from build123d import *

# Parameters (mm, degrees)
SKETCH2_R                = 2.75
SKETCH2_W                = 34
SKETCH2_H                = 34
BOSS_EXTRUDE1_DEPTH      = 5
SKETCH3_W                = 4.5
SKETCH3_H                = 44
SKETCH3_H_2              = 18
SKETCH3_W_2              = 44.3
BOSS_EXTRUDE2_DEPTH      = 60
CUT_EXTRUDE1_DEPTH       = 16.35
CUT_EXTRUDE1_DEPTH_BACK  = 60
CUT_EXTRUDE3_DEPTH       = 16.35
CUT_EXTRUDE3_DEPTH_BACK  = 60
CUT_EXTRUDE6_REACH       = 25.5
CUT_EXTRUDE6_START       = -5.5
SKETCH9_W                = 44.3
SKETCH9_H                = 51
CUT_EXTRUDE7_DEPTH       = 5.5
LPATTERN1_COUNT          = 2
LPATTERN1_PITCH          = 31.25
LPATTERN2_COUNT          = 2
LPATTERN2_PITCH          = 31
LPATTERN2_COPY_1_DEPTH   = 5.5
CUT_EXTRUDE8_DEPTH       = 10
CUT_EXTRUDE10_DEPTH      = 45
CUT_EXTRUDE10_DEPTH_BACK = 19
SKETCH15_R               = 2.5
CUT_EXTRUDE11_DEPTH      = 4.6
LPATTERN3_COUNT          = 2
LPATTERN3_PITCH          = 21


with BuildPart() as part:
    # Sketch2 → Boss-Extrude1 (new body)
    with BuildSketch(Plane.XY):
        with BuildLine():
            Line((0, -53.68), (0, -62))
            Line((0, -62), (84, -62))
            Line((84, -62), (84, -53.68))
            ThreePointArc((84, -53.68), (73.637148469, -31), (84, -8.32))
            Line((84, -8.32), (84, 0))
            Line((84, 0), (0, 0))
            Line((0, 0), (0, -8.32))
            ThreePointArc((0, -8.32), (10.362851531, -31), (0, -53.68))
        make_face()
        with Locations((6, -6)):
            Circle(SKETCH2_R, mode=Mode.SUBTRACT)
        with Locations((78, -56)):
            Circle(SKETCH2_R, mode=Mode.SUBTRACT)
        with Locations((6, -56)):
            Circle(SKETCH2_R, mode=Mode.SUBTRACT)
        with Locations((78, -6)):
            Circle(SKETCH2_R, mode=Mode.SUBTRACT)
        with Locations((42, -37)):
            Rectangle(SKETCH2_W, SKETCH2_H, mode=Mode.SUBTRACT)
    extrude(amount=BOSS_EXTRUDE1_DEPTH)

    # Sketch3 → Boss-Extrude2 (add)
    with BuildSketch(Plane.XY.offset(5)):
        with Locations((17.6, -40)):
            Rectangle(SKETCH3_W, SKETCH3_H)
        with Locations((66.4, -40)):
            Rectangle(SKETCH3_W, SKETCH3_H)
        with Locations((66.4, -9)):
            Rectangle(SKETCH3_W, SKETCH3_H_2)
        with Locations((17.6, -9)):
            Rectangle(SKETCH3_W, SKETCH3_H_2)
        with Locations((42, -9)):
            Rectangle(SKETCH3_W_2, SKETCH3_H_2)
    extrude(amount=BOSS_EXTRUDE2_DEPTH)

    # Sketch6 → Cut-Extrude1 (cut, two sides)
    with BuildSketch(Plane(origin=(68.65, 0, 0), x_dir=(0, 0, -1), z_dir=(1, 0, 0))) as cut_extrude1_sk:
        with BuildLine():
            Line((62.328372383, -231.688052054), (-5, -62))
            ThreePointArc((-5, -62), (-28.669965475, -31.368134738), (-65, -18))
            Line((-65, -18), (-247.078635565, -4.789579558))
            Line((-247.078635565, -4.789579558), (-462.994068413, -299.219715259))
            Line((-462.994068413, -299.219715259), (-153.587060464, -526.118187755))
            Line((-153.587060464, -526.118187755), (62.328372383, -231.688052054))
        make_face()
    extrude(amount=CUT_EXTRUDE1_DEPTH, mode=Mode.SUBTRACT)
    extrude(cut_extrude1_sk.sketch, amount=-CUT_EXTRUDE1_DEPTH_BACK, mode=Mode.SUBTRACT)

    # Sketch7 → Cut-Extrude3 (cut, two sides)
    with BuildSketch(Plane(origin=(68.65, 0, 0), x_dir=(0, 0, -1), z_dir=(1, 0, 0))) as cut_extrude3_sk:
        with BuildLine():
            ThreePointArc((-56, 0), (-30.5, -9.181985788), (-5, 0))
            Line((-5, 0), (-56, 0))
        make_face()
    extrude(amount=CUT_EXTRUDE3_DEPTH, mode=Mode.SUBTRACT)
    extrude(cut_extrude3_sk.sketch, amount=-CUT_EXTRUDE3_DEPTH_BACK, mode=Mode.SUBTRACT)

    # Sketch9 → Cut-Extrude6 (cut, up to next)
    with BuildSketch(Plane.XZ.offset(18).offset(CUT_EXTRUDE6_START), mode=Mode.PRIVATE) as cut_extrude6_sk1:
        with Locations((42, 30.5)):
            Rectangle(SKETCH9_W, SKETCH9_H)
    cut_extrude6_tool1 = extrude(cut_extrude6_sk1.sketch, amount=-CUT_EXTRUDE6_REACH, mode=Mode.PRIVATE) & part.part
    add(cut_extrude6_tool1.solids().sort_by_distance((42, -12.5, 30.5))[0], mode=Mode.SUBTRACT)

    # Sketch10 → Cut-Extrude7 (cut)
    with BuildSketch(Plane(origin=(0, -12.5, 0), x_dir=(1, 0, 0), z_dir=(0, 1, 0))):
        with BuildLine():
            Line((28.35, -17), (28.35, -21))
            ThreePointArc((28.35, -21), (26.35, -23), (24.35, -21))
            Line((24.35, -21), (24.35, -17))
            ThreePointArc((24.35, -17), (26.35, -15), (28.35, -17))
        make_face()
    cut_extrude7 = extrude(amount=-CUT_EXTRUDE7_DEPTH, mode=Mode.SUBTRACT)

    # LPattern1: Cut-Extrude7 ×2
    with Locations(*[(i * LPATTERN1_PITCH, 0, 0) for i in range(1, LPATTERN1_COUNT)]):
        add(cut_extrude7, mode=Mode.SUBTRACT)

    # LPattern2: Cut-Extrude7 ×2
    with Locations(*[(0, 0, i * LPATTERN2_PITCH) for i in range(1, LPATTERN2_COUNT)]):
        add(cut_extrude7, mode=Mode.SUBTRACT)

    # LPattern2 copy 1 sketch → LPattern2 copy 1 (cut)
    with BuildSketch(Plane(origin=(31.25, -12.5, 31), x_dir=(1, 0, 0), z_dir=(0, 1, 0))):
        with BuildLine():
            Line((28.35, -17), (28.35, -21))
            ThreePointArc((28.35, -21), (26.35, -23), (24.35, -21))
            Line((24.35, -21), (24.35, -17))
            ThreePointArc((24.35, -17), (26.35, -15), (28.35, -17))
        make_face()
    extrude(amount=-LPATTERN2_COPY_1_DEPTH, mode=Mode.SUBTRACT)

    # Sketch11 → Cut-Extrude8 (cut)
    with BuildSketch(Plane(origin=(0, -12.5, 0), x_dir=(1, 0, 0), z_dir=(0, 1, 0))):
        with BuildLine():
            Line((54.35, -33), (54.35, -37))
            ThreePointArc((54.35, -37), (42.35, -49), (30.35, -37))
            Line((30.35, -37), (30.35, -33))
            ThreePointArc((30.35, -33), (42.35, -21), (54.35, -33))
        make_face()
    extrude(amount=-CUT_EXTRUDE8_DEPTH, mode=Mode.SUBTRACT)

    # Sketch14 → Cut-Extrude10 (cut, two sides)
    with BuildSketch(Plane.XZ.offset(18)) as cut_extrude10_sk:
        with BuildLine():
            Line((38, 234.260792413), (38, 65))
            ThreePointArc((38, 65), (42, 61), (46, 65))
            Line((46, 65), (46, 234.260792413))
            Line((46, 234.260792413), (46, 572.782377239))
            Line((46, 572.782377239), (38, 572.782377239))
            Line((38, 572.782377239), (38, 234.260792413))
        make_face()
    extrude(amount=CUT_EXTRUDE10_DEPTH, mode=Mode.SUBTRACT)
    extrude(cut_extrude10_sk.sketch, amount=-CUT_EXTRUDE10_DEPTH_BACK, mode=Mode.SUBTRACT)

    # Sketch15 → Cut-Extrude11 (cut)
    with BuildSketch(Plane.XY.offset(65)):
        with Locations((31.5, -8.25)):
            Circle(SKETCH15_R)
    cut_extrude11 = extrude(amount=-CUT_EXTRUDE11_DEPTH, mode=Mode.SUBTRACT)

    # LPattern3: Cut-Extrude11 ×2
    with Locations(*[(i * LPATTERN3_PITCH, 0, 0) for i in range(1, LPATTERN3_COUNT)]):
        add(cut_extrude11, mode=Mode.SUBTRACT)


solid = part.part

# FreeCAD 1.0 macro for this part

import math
import FreeCAD as App
import Part
import Sketcher

V = App.Vector


def add_polygon(sketch, points):
    """Adds a closed chain of lines whose ends are joined by coincident constraints."""
    first, n = sketch.GeometryCount, len(points)
    for a, b in zip(points, points[1:] + points[:1]):
        sketch.addGeometry(Part.LineSegment(App.Vector(*a, 0), App.Vector(*b, 0)), False)
    for i in range(n):
        sketch.addConstraint(Sketcher.Constraint("Coincident", first + i, 2, first + (i + 1) % n, 1))

doc = App.newDocument("Part")
body = doc.addObject("PartDesign::Body", "Body")

sketch1 = body.newObject("Sketcher::SketchObject", "Sketch")
sketch1.AttachmentSupport = (doc.getObject("XY_Plane"), [""])
sketch1.MapMode = "FlatFace"
sketch1.addGeometry(Part.LineSegment(V(0, -53.7, 0), V(0, -62, 0)), False)
sketch1.addGeometry(Part.LineSegment(V(0, -62, 0), V(84, -62, 0)), False)
sketch1.addGeometry(Part.LineSegment(V(84, -62, 0), V(84, -53.7, 0)), False)
sketch1.addGeometry(Part.ArcOfCircle(Part.Circle(V(103.6, -31, 0), V(0, 0, 1), 30), math.radians(131), math.radians(229)), False)
sketch1.addGeometry(Part.LineSegment(V(84, -8.3, 0), V(84, 0, 0)), False)
sketch1.addGeometry(Part.LineSegment(V(84, 0, 0), V(0, 0, 0)), False)
sketch1.addGeometry(Part.LineSegment(V(0, 0, 0), V(0, -8.3, 0)), False)
sketch1.addGeometry(Part.ArcOfCircle(Part.Circle(V(-19.6, -31, 0), V(0, 0, 1), 30), math.radians(-49), math.radians(49)), False)
sketch1.addGeometry(Part.Circle(V(6, -56, 0), V(0, 0, 1), 2.8), False)
sketch1.addGeometry(Part.Circle(V(78, -56, 0), V(0, 0, 1), 2.8), False)
add_polygon(sketch1, [(59, -54), (25, -54), (25, -20), (59, -20)])
sketch1.addGeometry(Part.Circle(V(6, -6, 0), V(0, 0, 1), 2.8), False)
sketch1.addGeometry(Part.Circle(V(78, -6, 0), V(0, 0, 1), 2.8), False)
sketch1.addConstraint(Sketcher.Constraint("Coincident", 0, 2, 1, 1))
sketch1.addConstraint(Sketcher.Constraint("Coincident", 1, 2, 2, 1))
sketch1.addConstraint(Sketcher.Constraint("Coincident", 2, 2, 3, 2))
sketch1.addConstraint(Sketcher.Constraint("Coincident", 3, 1, 4, 1))
sketch1.addConstraint(Sketcher.Constraint("Coincident", 4, 2, 5, 1))
sketch1.addConstraint(Sketcher.Constraint("Coincident", 5, 2, 6, 1))
sketch1.addConstraint(Sketcher.Constraint("Coincident", 6, 2, 7, 2))
sketch1.addConstraint(Sketcher.Constraint("Coincident", 7, 1, 0, 1))
sketch1.addConstraint(Sketcher.Constraint("Vertical", 0))
sketch1.addConstraint(Sketcher.Constraint("Horizontal", 1))
sketch1.addConstraint(Sketcher.Constraint("Vertical", 2))
sketch1.addConstraint(Sketcher.Constraint("Vertical", 4))
sketch1.addConstraint(Sketcher.Constraint("Horizontal", 5))
sketch1.addConstraint(Sketcher.Constraint("Vertical", 6))
sketch1.addConstraint(Sketcher.Constraint("Horizontal", 10))
sketch1.addConstraint(Sketcher.Constraint("Vertical", 11))
sketch1.addConstraint(Sketcher.Constraint("Horizontal", 12))
sketch1.addConstraint(Sketcher.Constraint("Vertical", 13))
sketch1.addConstraint(Sketcher.Constraint("Coincident", 5, 2, -1, 1))
sketch1.addConstraint(Sketcher.Constraint("Equal", 3, 7))
sketch1.addConstraint(Sketcher.Constraint("Equal", 8, 9))
sketch1.addConstraint(Sketcher.Constraint("Equal", 9, 14))
sketch1.addConstraint(Sketcher.Constraint("Equal", 14, 15))
sketch1.addConstraint(Sketcher.Constraint("PointOnObject", 0, 2, -2))
sketch1.addConstraint(Sketcher.Constraint("Horizontal", 3, 3, 7, 3))
sketch1.addConstraint(Sketcher.Constraint("Horizontal", 8, 3, 9, 3))
sketch1.addConstraint(Sketcher.Constraint("Horizontal", 14, 3, 15, 3))
sketch1.addConstraint(Sketcher.Constraint("Horizontal", 3, 1, 6, 2))
sketch1.addConstraint(Sketcher.Constraint("Horizontal", 2, 2, 7, 1))
sketch1.addConstraint(Sketcher.Constraint("Vertical", 8, 3, 14, 3))
sketch1.addConstraint(Sketcher.Constraint("Vertical", 9, 3, 15, 3))
sketch1.addConstraint(Sketcher.Constraint("Equal", 2, 4))
sketch1.addConstraint(Sketcher.Constraint("Equal", 12, 11))
sketch1.addConstraint(Sketcher.Constraint("Radius", 3, 30.0))
sketch1.addConstraint(Sketcher.Constraint("Diameter", 8, 5.5))
sketch1.addConstraint(Sketcher.Constraint("DistanceX", 1, 1, 1, 2, 84.0))
sketch1.addConstraint(Sketcher.Constraint("DistanceX", 10, 2, 10, 1, 34.0))
sketch1.addConstraint(Sketcher.Constraint("DistanceY", 3, 3, -1, 1, 31.0))
sketch1.addConstraint(Sketcher.Constraint("DistanceX", -1, 1, 8, 3, 6.0))
sketch1.addConstraint(Sketcher.Constraint("DistanceY", 8, 3, -1, 1, 56.0))
sketch1.addConstraint(Sketcher.Constraint("DistanceX", -1, 1, 9, 3, 78.0))
sketch1.addConstraint(Sketcher.Constraint("DistanceY", 14, 3, -1, 1, 6.0))
sketch1.addConstraint(Sketcher.Constraint("DistanceX", -1, 1, 10, 2, 25.0))
sketch1.addConstraint(Sketcher.Constraint("DistanceY", 10, 2, -1, 1, 54.0))
sketch1.addConstraint(Sketcher.Constraint("DistanceY", 0, 2, 0, 1, 8.32))
pad1 = body.newObject("PartDesign::Pad", "Pad")
pad1.Profile = sketch1
pad1.Length = 5

sketch2 = body.newObject("Sketcher::SketchObject", "Sketch001")
sketch2.AttachmentSupport = (doc.getObject("XY_Plane"), [""])
sketch2.MapMode = "FlatFace"
sketch2.AttachmentOffset = App.Placement(V(0, 0, 5), App.Rotation())
add_polygon(sketch2, [(15.3, -62), (19.9, -62), (19.9, -18), (64.2, -18), (64.2, -62), (68.7, -62), (68.7, 0), (15.3, 0)])
sketch2.addConstraint(Sketcher.Constraint("Horizontal", 0))
sketch2.addConstraint(Sketcher.Constraint("Vertical", 1))
sketch2.addConstraint(Sketcher.Constraint("Horizontal", 2))
sketch2.addConstraint(Sketcher.Constraint("Vertical", 3))
sketch2.addConstraint(Sketcher.Constraint("Horizontal", 4))
sketch2.addConstraint(Sketcher.Constraint("Vertical", 5))
sketch2.addConstraint(Sketcher.Constraint("Horizontal", 6))
sketch2.addConstraint(Sketcher.Constraint("Vertical", 7))
sketch2.addConstraint(Sketcher.Constraint("PointOnObject", 5, 2, -1))
sketch2.addConstraint(Sketcher.Constraint("Horizontal", 0, 2, 3, 2))
sketch2.addConstraint(Sketcher.Constraint("Equal", 0, 4))
sketch2.addConstraint(Sketcher.Constraint("DistanceY", 1, 1, 1, 2, 44.0))
sketch2.addConstraint(Sketcher.Constraint("DistanceY", 5, 1, 5, 2, 62.0))
sketch2.addConstraint(Sketcher.Constraint("DistanceX", 0, 1, 0, 2, 4.5))
sketch2.addConstraint(Sketcher.Constraint("DistanceX", 2, 1, 2, 2, 44.3))
sketch2.addConstraint(Sketcher.Constraint("DistanceX", -1, 1, 0, 2, 19.85))
pad2 = body.newObject("PartDesign::Pad", "Pad001")
pad2.Profile = sketch2
pad2.Length = 60

sketch3 = body.newObject("Sketcher::SketchObject", "Sketch002")
sketch3.AttachmentSupport = (doc.getObject("YZ_Plane"), [""])
sketch3.MapMode = "FlatFace"
sketch3.AttachmentOffset = App.Placement(V(0, 0, 68.65), App.Rotation())
sketch3.addGeometry(Part.LineSegment(V(-232, -62, 0), V(-62, 5, 0)), False)
sketch3.addGeometry(Part.ArcOfCircle(Part.Circle(V(-88, 70, 0), V(0, 0, 1), 70), math.radians(-68), math.radians(-4)), False)
sketch3.addGeometry(Part.LineSegment(V(-18, 65, 0), V(-5, 247, 0)), False)
sketch3.addGeometry(Part.LineSegment(V(-5, 247, 0), V(-299, 463, 0)), False)
sketch3.addGeometry(Part.LineSegment(V(-299, 463, 0), V(-526, 154, 0)), False)
sketch3.addGeometry(Part.LineSegment(V(-526, 154, 0), V(-232, -62, 0)), False)
sketch3.addConstraint(Sketcher.Constraint("Tangent", 0, 2, 1, 1))
sketch3.addConstraint(Sketcher.Constraint("Tangent", 1, 2, 2, 1))
sketch3.addConstraint(Sketcher.Constraint("Coincident", 2, 2, 3, 1))
sketch3.addConstraint(Sketcher.Constraint("Coincident", 3, 2, 4, 1))
sketch3.addConstraint(Sketcher.Constraint("Coincident", 4, 2, 5, 1))
sketch3.addConstraint(Sketcher.Constraint("Coincident", 5, 2, 0, 1))
sketch3.addConstraint(Sketcher.Constraint("Perpendicular", 3, 4))
sketch3.addConstraint(Sketcher.Constraint("Perpendicular", 4, 5))
sketch3.addConstraint(Sketcher.Constraint("Equal", 0, 2))
sketch3.addConstraint(Sketcher.Constraint("Equal", 3, 5))
sketch3.addConstraint(Sketcher.Constraint("Radius", 1, 70.0))
sketch3.addConstraint(Sketcher.Constraint("DistanceX", 0, 2, -1, 1, 62.0))
sketch3.addConstraint(Sketcher.Constraint("DistanceY", -1, 1, 0, 2, 5.0))
sketch3.addConstraint(Sketcher.Constraint("DistanceX", 1, 2, -1, 1, 18.0))
sketch3.addConstraint(Sketcher.Constraint("Distance", 4, 383.686869))
sketch3.addConstraint(Sketcher.Constraint("DistanceY", -1, 1, 1, 3, 70.065422))
sketch3.addConstraint(Sketcher.Constraint("DistanceY", -1, 1, 3, 2, 462.994068))
pocket1 = body.newObject("PartDesign::Pocket", "Pocket")
pocket1.Profile = sketch3
pocket1.Type = "ThroughAll"
pocket1.Midplane = True

sketch4 = body.newObject("Sketcher::SketchObject", "Sketch003")
sketch4.AttachmentSupport = (doc.getObject("YZ_Plane"), [""])
sketch4.MapMode = "FlatFace"
sketch4.AttachmentOffset = App.Placement(V(0, 0, 68.65), App.Rotation())
sketch4.addGeometry(Part.ArcOfCircle(Part.Circle(V(31, 30, 0), V(0, 0, 1), 40), math.radians(140), math.radians(220)), False)
sketch4.addGeometry(Part.LineSegment(V(0, 5, 0), V(0, 56, 0)), False)
sketch4.addConstraint(Sketcher.Constraint("Coincident", 0, 1, 1, 2))
sketch4.addConstraint(Sketcher.Constraint("Coincident", 1, 1, 0, 2))
sketch4.addConstraint(Sketcher.Constraint("Vertical", 1))
sketch4.addConstraint(Sketcher.Constraint("PointOnObject", 0, 1, -2))
sketch4.addConstraint(Sketcher.Constraint("Radius", 0, 40.0))
sketch4.addConstraint(Sketcher.Constraint("DistanceY", 1, 1, 1, 2, 51.0))
sketch4.addConstraint(Sketcher.Constraint("DistanceY", -1, 1, 0, 1, 56.0))
pocket2 = body.newObject("PartDesign::Pocket", "Pocket001")
pocket2.Profile = sketch4
pocket2.Type = "ThroughAll"
pocket2.Midplane = True

sketch5 = body.newObject("Sketcher::SketchObject", "Sketch004")
sketch5.AttachmentSupport = (doc.getObject("XZ_Plane"), [""])
sketch5.MapMode = "FlatFace"
sketch5.AttachmentOffset = App.Placement(V(0, 0, 12.5), App.Rotation())
add_polygon(sketch5, [(20, 56), (20, 5), (64, 5), (64, 56)])
sketch5.addConstraint(Sketcher.Constraint("Vertical", 0))
sketch5.addConstraint(Sketcher.Constraint("Horizontal", 1))
sketch5.addConstraint(Sketcher.Constraint("Vertical", 2))
sketch5.addConstraint(Sketcher.Constraint("Horizontal", 3))
sketch5.addConstraint(Sketcher.Constraint("DistanceY", 0, 2, 0, 1, 51.0))
sketch5.addConstraint(Sketcher.Constraint("DistanceX", 1, 1, 1, 2, 44.3))
sketch5.addConstraint(Sketcher.Constraint("DistanceY", -1, 1, 0, 2, 5.0))
sketch5.addConstraint(Sketcher.Constraint("DistanceX", -1, 1, 0, 2, 19.85))
pocket3 = body.newObject("PartDesign::Pocket", "Pocket002")
pocket3.Profile = sketch5
pocket3.Type = "UpToFirst"

sketch6 = body.newObject("Sketcher::SketchObject", "Sketch005")
sketch6.AttachmentSupport = (doc.getObject("XZ_Plane"), [""])
sketch6.MapMode = "FlatFace"
sketch6.AttachmentOffset = App.Placement(V(0, 0, 12.5), App.Rotation())
sketch6.addGeometry(Part.LineSegment(V(28.4, 21, 0), V(28.4, 17, 0)), False)
sketch6.addGeometry(Part.ArcOfCircle(Part.Circle(V(26.4, 17, 0), V(0, 0, 1), 2), math.radians(180), math.radians(360)), False)
sketch6.addGeometry(Part.LineSegment(V(24.4, 17, 0), V(24.4, 21, 0)), False)
sketch6.addGeometry(Part.ArcOfCircle(Part.Circle(V(26.4, 21, 0), V(0, 0, 1), 2), math.radians(0), math.radians(180)), False)
sketch6.addConstraint(Sketcher.Constraint("Tangent", 0, 2, 1, 2))
sketch6.addConstraint(Sketcher.Constraint("Tangent", 1, 1, 2, 1))
sketch6.addConstraint(Sketcher.Constraint("Tangent", 2, 2, 3, 2))
sketch6.addConstraint(Sketcher.Constraint("Tangent", 3, 1, 0, 1))
sketch6.addConstraint(Sketcher.Constraint("Vertical", 0))
sketch6.addConstraint(Sketcher.Constraint("Vertical", 2))
sketch6.addConstraint(Sketcher.Constraint("Radius", 1, 2.0))
sketch6.addConstraint(Sketcher.Constraint("DistanceY", 0, 2, 0, 1, 4.0))
sketch6.addConstraint(Sketcher.Constraint("DistanceY", -1, 1, 1, 3, 17.0))
sketch6.addConstraint(Sketcher.Constraint("DistanceX", -1, 1, 1, 3, 26.35))
pocket4 = body.newObject("PartDesign::Pocket", "Pocket003")
pocket4.Profile = sketch6
pocket4.Length = 5.5
pocket4.Reversed = True
doc.recompute()

linearpattern = body.newObject("PartDesign::LinearPattern", "LinearPattern")
linearpattern.Originals = [pocket4]
linearpattern.Direction = (doc.getObject("X_Axis"), [""])
linearpattern.Mode = "offset"
linearpattern.Offset = 31.25
linearpattern.Occurrences = 2
body.Tip = linearpattern
doc.recompute()

linearpattern2 = body.newObject("PartDesign::LinearPattern", "LinearPattern001")
linearpattern2.Originals = [pocket4]
linearpattern2.Direction = (doc.getObject("Z_Axis"), [""])
linearpattern2.Mode = "offset"
linearpattern2.Offset = 31
linearpattern2.Occurrences = 2
body.Tip = linearpattern2

sketch7 = body.newObject("Sketcher::SketchObject", "Sketch006")
sketch7.AttachmentSupport = (doc.getObject("XZ_Plane"), [""])
sketch7.MapMode = "FlatFace"
sketch7.AttachmentOffset = App.Placement(V(0, 0, 12.5), App.Rotation())
sketch7.addGeometry(Part.LineSegment(V(59.6, 52, 0), V(59.6, 48, 0)), False)
sketch7.addGeometry(Part.ArcOfCircle(Part.Circle(V(57.6, 48, 0), V(0, 0, 1), 2), math.radians(180), math.radians(360)), False)
sketch7.addGeometry(Part.LineSegment(V(55.6, 48, 0), V(55.6, 52, 0)), False)
sketch7.addGeometry(Part.ArcOfCircle(Part.Circle(V(57.6, 52, 0), V(0, 0, 1), 2), math.radians(0), math.radians(180)), False)
sketch7.addConstraint(Sketcher.Constraint("Tangent", 0, 2, 1, 2))
sketch7.addConstraint(Sketcher.Constraint("Tangent", 1, 1, 2, 1))
sketch7.addConstraint(Sketcher.Constraint("Tangent", 2, 2, 3, 2))
sketch7.addConstraint(Sketcher.Constraint("Tangent", 3, 1, 0, 1))
sketch7.addConstraint(Sketcher.Constraint("Vertical", 0))
sketch7.addConstraint(Sketcher.Constraint("Vertical", 2))
sketch7.addConstraint(Sketcher.Constraint("Radius", 1, 2.0))
sketch7.addConstraint(Sketcher.Constraint("DistanceY", 0, 2, 0, 1, 4.0))
sketch7.addConstraint(Sketcher.Constraint("DistanceY", -1, 1, 1, 3, 48.0))
sketch7.addConstraint(Sketcher.Constraint("DistanceX", -1, 1, 1, 3, 57.6))
pocket5 = body.newObject("PartDesign::Pocket", "Pocket004")
pocket5.Profile = sketch7
pocket5.Length = 5.5
pocket5.Reversed = True

sketch8 = body.newObject("Sketcher::SketchObject", "Sketch007")
sketch8.AttachmentSupport = (doc.getObject("XZ_Plane"), [""])
sketch8.MapMode = "FlatFace"
sketch8.AttachmentOffset = App.Placement(V(0, 0, 12.5), App.Rotation())
sketch8.addGeometry(Part.LineSegment(V(54.4, 37, 0), V(54.4, 33, 0)), False)
sketch8.addGeometry(Part.ArcOfCircle(Part.Circle(V(42.4, 33, 0), V(0, 0, 1), 12), math.radians(180), math.radians(360)), False)
sketch8.addGeometry(Part.LineSegment(V(30.4, 33, 0), V(30.4, 37, 0)), False)
sketch8.addGeometry(Part.ArcOfCircle(Part.Circle(V(42.4, 37, 0), V(0, 0, 1), 12), math.radians(0), math.radians(180)), False)
sketch8.addConstraint(Sketcher.Constraint("Tangent", 0, 2, 1, 2))
sketch8.addConstraint(Sketcher.Constraint("Tangent", 1, 1, 2, 1))
sketch8.addConstraint(Sketcher.Constraint("Tangent", 2, 2, 3, 2))
sketch8.addConstraint(Sketcher.Constraint("Tangent", 3, 1, 0, 1))
sketch8.addConstraint(Sketcher.Constraint("Vertical", 0))
sketch8.addConstraint(Sketcher.Constraint("Vertical", 2))
sketch8.addConstraint(Sketcher.Constraint("Radius", 1, 12.0))
sketch8.addConstraint(Sketcher.Constraint("DistanceY", 0, 2, 0, 1, 4.0))
sketch8.addConstraint(Sketcher.Constraint("DistanceY", -1, 1, 1, 3, 33.0))
sketch8.addConstraint(Sketcher.Constraint("DistanceX", -1, 1, 1, 3, 42.35))
pocket6 = body.newObject("PartDesign::Pocket", "Pocket005")
pocket6.Profile = sketch8
pocket6.Length = 10
pocket6.Reversed = True

sketch9 = body.newObject("Sketcher::SketchObject", "Sketch008")
sketch9.AttachmentSupport = (doc.getObject("XZ_Plane"), [""])
sketch9.MapMode = "FlatFace"
sketch9.AttachmentOffset = App.Placement(V(0, 0, 18), App.Rotation())
sketch9.addGeometry(Part.ArcOfCircle(Part.Circle(V(42, 65, 0), V(0, 0, 1), 4), math.radians(180), math.radians(360)), False)
sketch9.addGeometry(Part.LineSegment(V(46, 65, 0), V(46, 572.8, 0)), False)
sketch9.addGeometry(Part.LineSegment(V(46, 572.8, 0), V(38, 572.8, 0)), False)
sketch9.addGeometry(Part.LineSegment(V(38, 572.8, 0), V(38, 65, 0)), False)
sketch9.addConstraint(Sketcher.Constraint("Tangent", 0, 2, 1, 1))
sketch9.addConstraint(Sketcher.Constraint("Coincident", 1, 2, 2, 1))
sketch9.addConstraint(Sketcher.Constraint("Coincident", 2, 2, 3, 1))
sketch9.addConstraint(Sketcher.Constraint("Tangent", 3, 2, 0, 1))
sketch9.addConstraint(Sketcher.Constraint("Vertical", 1))
sketch9.addConstraint(Sketcher.Constraint("Horizontal", 2))
sketch9.addConstraint(Sketcher.Constraint("Vertical", 3))
sketch9.addConstraint(Sketcher.Constraint("Radius", 0, 4.0))
sketch9.addConstraint(Sketcher.Constraint("DistanceX", -1, 1, 0, 3, 42.0))
sketch9.addConstraint(Sketcher.Constraint("DistanceY", -1, 1, 0, 3, 65.0))
sketch9.addConstraint(Sketcher.Constraint("DistanceY", 1, 1, 1, 2, 507.782377))
pocket7 = body.newObject("PartDesign::Pocket", "Pocket006")
pocket7.Profile = sketch9
pocket7.Type = "ThroughAll"
pocket7.Midplane = True

sketch10 = body.newObject("Sketcher::SketchObject", "Sketch009")
sketch10.AttachmentSupport = (doc.getObject("XY_Plane"), [""])
sketch10.MapMode = "FlatFace"
sketch10.AttachmentOffset = App.Placement(V(0, 0, 65), App.Rotation())
sketch10.addGeometry(Part.Circle(V(31.5, -8.2, 0), V(0, 0, 1), 2.5), False)
sketch10.addConstraint(Sketcher.Constraint("Diameter", 0, 5.0))
sketch10.addConstraint(Sketcher.Constraint("DistanceX", -1, 1, 0, 3, 31.5))
sketch10.addConstraint(Sketcher.Constraint("DistanceY", 0, 3, -1, 1, 8.25))
pocket8 = body.newObject("PartDesign::Pocket", "Pocket007")
pocket8.Profile = sketch10
pocket8.Length = 4.6
doc.recompute()

linearpattern3 = body.newObject("PartDesign::LinearPattern", "LinearPattern002")
linearpattern3.Originals = [pocket8]
linearpattern3.Direction = (doc.getObject("X_Axis"), [""])
linearpattern3.Mode = "offset"
linearpattern3.Offset = 21
linearpattern3.Occurrences = 2
body.Tip = linearpattern3

doc.recompute()
